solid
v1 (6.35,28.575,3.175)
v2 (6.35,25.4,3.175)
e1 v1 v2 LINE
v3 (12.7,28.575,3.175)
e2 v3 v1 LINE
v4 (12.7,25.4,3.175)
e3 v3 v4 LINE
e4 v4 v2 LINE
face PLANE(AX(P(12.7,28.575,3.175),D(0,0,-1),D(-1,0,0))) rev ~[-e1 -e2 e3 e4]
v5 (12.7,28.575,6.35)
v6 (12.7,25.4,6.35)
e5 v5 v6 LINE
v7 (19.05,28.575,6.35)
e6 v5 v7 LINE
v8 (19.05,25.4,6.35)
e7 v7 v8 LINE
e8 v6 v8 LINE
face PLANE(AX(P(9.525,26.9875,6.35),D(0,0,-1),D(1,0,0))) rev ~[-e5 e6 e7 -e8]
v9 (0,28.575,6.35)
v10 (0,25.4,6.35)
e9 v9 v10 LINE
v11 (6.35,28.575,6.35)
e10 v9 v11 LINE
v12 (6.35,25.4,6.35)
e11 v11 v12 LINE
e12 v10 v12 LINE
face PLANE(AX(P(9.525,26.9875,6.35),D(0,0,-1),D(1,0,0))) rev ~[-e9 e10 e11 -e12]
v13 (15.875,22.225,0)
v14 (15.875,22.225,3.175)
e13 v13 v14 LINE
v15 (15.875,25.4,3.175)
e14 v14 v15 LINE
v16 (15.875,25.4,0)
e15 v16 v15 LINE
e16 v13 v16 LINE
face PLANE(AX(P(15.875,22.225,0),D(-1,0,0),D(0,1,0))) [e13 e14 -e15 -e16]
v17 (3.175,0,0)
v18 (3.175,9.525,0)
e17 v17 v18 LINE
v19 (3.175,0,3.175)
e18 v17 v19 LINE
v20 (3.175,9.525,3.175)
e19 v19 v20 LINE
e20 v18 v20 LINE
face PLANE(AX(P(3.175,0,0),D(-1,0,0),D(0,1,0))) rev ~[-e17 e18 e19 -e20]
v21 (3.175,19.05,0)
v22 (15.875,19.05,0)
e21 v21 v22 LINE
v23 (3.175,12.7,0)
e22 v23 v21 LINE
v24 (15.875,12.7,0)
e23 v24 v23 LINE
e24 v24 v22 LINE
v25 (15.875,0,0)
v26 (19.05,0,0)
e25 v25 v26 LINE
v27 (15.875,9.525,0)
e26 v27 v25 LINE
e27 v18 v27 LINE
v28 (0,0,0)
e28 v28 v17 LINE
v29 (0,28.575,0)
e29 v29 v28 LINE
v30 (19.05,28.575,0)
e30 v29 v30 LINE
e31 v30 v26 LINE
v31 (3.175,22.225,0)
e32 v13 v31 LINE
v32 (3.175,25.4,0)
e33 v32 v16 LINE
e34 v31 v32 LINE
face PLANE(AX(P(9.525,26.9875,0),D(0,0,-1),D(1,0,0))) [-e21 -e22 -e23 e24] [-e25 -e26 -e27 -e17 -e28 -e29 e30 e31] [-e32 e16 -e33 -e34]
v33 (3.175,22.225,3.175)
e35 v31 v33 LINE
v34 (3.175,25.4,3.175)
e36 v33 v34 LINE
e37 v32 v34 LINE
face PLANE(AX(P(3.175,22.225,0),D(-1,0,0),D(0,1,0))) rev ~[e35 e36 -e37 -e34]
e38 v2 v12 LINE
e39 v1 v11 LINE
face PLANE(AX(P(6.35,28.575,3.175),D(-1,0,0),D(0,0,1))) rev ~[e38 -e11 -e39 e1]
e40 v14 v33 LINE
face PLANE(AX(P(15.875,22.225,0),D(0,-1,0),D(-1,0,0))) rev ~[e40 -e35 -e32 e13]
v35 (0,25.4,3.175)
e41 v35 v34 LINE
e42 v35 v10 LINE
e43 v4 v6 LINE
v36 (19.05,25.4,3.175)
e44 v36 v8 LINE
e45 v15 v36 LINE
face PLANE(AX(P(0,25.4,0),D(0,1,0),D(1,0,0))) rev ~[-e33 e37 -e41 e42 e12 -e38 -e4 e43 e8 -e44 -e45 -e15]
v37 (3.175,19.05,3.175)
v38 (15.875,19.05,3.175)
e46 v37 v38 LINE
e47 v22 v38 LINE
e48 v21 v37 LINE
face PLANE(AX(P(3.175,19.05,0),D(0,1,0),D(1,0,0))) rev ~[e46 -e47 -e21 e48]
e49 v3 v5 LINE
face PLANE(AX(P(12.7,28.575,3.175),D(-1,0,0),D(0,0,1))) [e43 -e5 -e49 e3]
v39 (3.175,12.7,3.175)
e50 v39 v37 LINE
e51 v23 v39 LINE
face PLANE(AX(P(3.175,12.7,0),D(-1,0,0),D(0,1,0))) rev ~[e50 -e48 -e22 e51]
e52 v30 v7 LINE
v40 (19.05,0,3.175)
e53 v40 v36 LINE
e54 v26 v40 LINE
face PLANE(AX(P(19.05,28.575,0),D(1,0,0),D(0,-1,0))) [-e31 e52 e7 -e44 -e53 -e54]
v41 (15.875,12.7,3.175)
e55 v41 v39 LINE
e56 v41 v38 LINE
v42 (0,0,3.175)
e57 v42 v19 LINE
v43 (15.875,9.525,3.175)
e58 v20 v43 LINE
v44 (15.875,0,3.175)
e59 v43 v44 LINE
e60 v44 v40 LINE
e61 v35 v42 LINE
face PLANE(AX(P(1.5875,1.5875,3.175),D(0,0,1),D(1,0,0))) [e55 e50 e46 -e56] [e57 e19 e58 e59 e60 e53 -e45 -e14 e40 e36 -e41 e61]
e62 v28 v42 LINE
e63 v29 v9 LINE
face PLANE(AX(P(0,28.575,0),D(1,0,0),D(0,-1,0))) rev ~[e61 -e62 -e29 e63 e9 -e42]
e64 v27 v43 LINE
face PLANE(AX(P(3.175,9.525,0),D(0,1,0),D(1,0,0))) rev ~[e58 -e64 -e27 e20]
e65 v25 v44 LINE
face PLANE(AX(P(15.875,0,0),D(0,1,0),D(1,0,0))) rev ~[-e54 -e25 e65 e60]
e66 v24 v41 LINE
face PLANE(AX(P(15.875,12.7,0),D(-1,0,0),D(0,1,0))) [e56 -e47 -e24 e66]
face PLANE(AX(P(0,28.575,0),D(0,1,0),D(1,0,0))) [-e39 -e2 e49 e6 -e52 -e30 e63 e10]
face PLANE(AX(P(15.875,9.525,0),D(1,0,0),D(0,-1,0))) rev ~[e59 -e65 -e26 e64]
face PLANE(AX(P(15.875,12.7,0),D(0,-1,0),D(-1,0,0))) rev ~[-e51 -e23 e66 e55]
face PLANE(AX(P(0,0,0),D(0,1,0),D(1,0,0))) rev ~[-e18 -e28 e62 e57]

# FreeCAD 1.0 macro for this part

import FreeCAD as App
import Part
import Sketcher

V = App.Vector
Q = App.Units.Quantity


def add_polygon(sketch, points):
    """Adds a closed chain of lines whose ends are joined by coincident constraints."""
    first, n = sketch.GeometryCount, len(points)
    for a, b in zip(points, points[1:] + points[:1]):
        sketch.addGeometry(Part.LineSegment(App.Vector(*a, 0), App.Vector(*b, 0)), False)
    for i in range(n):
        sketch.addConstraint(Sketcher.Constraint("Coincident", first + i, 2, first + (i + 1) % n, 1))

doc = App.newDocument("Part")
body = doc.addObject("PartDesign::Body", "Body")

# Sketch on XY plane
sketch1 = body.newObject("Sketcher::SketchObject", "Sketch")
sketch1.AttachmentSupport = (doc.getObject("XY_Plane"), [""])
sketch1.MapMode = "FlatFace"
add_polygon(sketch1, [(15.9, 0), (19.1, 0), (19.1, 25.4), (15.9, 25.4), (15.9, 22.2), (3.2, 22.2), (3.2, 25.4), (0, 25.4), (0, 0), (3.2, 0), (3.2, 9.5), (15.9, 9.5)])  # lines 0-11
add_polygon(sketch1, [(15.9, 19.1), (15.9, 12.7), (3.2, 12.7), (3.2, 19.1)])  # lines 12-15
sketch1.addConstraint([
    Sketcher.Constraint("Horizontal", 0),
    Sketcher.Constraint("Vertical", 1),
    Sketcher.Constraint("Horizontal", 2),
    Sketcher.Constraint("Vertical", 3),
    Sketcher.Constraint("Horizontal", 4),
    Sketcher.Constraint("Vertical", 5),
    Sketcher.Constraint("Horizontal", 6),
    Sketcher.Constraint("Vertical", 7),
    Sketcher.Constraint("Horizontal", 8),
    Sketcher.Constraint("Vertical", 9),
    Sketcher.Constraint("Horizontal", 10),
    Sketcher.Constraint("Vertical", 11),
    Sketcher.Constraint("Vertical", 12),
    Sketcher.Constraint("Horizontal", 13),
    Sketcher.Constraint("Vertical", 14),
    Sketcher.Constraint("Horizontal", 15),
    Sketcher.Constraint("Coincident", 7, 2, -1, 1),
    Sketcher.Constraint("PointOnObject", 0, 2, -1),
    Sketcher.Constraint("Horizontal", 2, 2, 5, 2),
    Sketcher.Constraint("Vertical", 5, 2, 8, 2),
    Sketcher.Constraint("Vertical", 3, 2, 10, 2),
    Sketcher.Constraint("Vertical", 11, 2, 12, 2),
    Sketcher.Constraint("Vertical", 9, 2, 13, 2),
    Sketcher.Constraint("Equal", 2, 6),
    Sketcher.Constraint("Equal", 8, 3),
    Sketcher.Constraint("DistanceY", 1, 1, 1, 2, Q("1 in")),
    Sketcher.Constraint("DistanceX", 4, 2, 4, 1, Q("0.5 in")),
    Sketcher.Constraint("DistanceY", 12, 2, 12, 1, Q("0.25 in")),
    Sketcher.Constraint("DistanceY", -1, 1, 12, 2, Q("0.5 in")),
    Sketcher.Constraint("DistanceY", 9, 2, 4, 2, Q("0.5 in")),
    Sketcher.Constraint("DistanceX", 0, 1, 0, 2, Q("0.125 in")),
])
pad1 = body.newObject("PartDesign::Pad", "Pad")
pad1.Profile = sketch1
pad1.Length = Q("0.125 in")

# Sketch on XY plane
sketch2 = body.newObject("Sketcher::SketchObject", "Sketch001")
sketch2.AttachmentSupport = (doc.getObject("XY_Plane"), [""])
sketch2.MapMode = "FlatFace"
add_polygon(sketch2, [(0, 25.4), (0, 28.6), (19.1, 28.6), (19.1, 25.4)])  # lines 0-3
sketch2.addConstraint([
    Sketcher.Constraint("Vertical", 0),
    Sketcher.Constraint("Horizontal", 1),
    Sketcher.Constraint("Vertical", 2),
    Sketcher.Constraint("Horizontal", 3),
    Sketcher.Constraint("PointOnObject", 0, 2, -2),
    Sketcher.Constraint("DistanceY", -1, 1, 2, 2, Q("1 in")),
    Sketcher.Constraint("DistanceX", 1, 1, 1, 2, Q("0.75 in")),
    Sketcher.Constraint("DistanceY", 0, 1, 0, 2, Q("0.125 in")),
])
pad2 = body.newObject("PartDesign::Pad", "Pad001")
pad2.Profile = sketch2
pad2.Length = Q("0.25 in")

# Sketch on XZ plane
sketch3 = body.newObject("Sketcher::SketchObject", "Sketch002")
sketch3.AttachmentSupport = (doc.getObject("XZ_Plane"), [""])
sketch3.MapMode = "FlatFace"
sketch3.AttachmentOffset = App.Placement(V(0, 0, -1.125 * 25.4), App.Rotation())
add_polygon(sketch3, [(12.7, 6.3), (12.7, 3.2), (6.3, 3.2), (6.3, 6.3)])  # lines 0-3
sketch3.addConstraint([
    Sketcher.Constraint("Vertical", 0),
    Sketcher.Constraint("Horizontal", 1),
    Sketcher.Constraint("Vertical", 2),
    Sketcher.Constraint("Horizontal", 3),
    Sketcher.Constraint("DistanceX", 1, 2, 1, 1, Q("0.25 in")),
    Sketcher.Constraint("DistanceX", -1, 1, 0, 2, Q("0.5 in")),
    Sketcher.Constraint("DistanceY", 0, 2, 0, 1, Q("0.125 in")),
    Sketcher.Constraint("DistanceY", -1, 1, 2, 2, Q("0.25 in")),
])
pocket1 = body.newObject("PartDesign::Pocket", "Pocket")
pocket1.Profile = sketch3
pocket1.Length = Q("1 in")
pocket1.Reversed = True

doc.recompute()
